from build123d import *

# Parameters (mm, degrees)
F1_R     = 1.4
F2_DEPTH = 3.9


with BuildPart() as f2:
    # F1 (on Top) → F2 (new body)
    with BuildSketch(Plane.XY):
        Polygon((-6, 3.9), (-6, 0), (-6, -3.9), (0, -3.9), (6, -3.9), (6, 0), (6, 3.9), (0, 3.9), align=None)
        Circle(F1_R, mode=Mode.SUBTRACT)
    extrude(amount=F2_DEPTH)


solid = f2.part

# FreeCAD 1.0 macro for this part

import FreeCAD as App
import Part
import Sketcher

V = App.Vector
Q = App.Units.Quantity


def add_polygon(sketch, points):
    """Adds a closed chain of lines whose ends are joined by coincident constraints."""
    first, n = sketch.GeometryCount, len(points)
    for a, b in zip(points, points[1:] + points[:1]):
        sketch.addGeometry(Part.LineSegment(App.Vector(*a, 0), App.Vector(*b, 0)), False)
    for i in range(n):
        sketch.addConstraint(Sketcher.Constraint("Coincident", first + i, 2, first + (i + 1) % n, 1))

doc = App.newDocument("Part")
body = doc.addObject("PartDesign::Body", "Body")

# Sketch on XY plane
sketch1 = body.newObject("Sketcher::SketchObject", "Sketch")
sketch1.AttachmentSupport = (doc.getObject("XY_Plane"), [""])
sketch1.MapMode = "FlatFace"
add_polygon(sketch1, [(-6, 3.9), (-6, -3.9), (6, -3.9), (6, 3.9)])  # lines 0-3
sketch1.addGeometry(Part.Circle(V(0, 0, 0), V(0, 0, 1), 1.4), False)  # 4
sketch1.addConstraint([
    Sketcher.Constraint("Vertical", 0),
    Sketcher.Constraint("Horizontal", 1),
    Sketcher.Constraint("Vertical", 2),
    Sketcher.Constraint("Horizontal", 3),
    Sketcher.Constraint("Coincident", 4, 3, -1, 1),
    Sketcher.Constraint("Symmetric", 0, 2, 2, 2, -1, 1),
    Sketcher.Constraint("Diameter", 4, Q("2.8 mm")),
    Sketcher.Constraint("DistanceX", 1, 1, 1, 2, Q("12 mm")),
    Sketcher.Constraint("DistanceY", 0, 2, 0, 1, Q("7.8 mm")),
])
pad1 = body.newObject("PartDesign::Pad", "Pad")
pad1.Profile = sketch1
pad1.Length = 3.9

doc.recompute()
